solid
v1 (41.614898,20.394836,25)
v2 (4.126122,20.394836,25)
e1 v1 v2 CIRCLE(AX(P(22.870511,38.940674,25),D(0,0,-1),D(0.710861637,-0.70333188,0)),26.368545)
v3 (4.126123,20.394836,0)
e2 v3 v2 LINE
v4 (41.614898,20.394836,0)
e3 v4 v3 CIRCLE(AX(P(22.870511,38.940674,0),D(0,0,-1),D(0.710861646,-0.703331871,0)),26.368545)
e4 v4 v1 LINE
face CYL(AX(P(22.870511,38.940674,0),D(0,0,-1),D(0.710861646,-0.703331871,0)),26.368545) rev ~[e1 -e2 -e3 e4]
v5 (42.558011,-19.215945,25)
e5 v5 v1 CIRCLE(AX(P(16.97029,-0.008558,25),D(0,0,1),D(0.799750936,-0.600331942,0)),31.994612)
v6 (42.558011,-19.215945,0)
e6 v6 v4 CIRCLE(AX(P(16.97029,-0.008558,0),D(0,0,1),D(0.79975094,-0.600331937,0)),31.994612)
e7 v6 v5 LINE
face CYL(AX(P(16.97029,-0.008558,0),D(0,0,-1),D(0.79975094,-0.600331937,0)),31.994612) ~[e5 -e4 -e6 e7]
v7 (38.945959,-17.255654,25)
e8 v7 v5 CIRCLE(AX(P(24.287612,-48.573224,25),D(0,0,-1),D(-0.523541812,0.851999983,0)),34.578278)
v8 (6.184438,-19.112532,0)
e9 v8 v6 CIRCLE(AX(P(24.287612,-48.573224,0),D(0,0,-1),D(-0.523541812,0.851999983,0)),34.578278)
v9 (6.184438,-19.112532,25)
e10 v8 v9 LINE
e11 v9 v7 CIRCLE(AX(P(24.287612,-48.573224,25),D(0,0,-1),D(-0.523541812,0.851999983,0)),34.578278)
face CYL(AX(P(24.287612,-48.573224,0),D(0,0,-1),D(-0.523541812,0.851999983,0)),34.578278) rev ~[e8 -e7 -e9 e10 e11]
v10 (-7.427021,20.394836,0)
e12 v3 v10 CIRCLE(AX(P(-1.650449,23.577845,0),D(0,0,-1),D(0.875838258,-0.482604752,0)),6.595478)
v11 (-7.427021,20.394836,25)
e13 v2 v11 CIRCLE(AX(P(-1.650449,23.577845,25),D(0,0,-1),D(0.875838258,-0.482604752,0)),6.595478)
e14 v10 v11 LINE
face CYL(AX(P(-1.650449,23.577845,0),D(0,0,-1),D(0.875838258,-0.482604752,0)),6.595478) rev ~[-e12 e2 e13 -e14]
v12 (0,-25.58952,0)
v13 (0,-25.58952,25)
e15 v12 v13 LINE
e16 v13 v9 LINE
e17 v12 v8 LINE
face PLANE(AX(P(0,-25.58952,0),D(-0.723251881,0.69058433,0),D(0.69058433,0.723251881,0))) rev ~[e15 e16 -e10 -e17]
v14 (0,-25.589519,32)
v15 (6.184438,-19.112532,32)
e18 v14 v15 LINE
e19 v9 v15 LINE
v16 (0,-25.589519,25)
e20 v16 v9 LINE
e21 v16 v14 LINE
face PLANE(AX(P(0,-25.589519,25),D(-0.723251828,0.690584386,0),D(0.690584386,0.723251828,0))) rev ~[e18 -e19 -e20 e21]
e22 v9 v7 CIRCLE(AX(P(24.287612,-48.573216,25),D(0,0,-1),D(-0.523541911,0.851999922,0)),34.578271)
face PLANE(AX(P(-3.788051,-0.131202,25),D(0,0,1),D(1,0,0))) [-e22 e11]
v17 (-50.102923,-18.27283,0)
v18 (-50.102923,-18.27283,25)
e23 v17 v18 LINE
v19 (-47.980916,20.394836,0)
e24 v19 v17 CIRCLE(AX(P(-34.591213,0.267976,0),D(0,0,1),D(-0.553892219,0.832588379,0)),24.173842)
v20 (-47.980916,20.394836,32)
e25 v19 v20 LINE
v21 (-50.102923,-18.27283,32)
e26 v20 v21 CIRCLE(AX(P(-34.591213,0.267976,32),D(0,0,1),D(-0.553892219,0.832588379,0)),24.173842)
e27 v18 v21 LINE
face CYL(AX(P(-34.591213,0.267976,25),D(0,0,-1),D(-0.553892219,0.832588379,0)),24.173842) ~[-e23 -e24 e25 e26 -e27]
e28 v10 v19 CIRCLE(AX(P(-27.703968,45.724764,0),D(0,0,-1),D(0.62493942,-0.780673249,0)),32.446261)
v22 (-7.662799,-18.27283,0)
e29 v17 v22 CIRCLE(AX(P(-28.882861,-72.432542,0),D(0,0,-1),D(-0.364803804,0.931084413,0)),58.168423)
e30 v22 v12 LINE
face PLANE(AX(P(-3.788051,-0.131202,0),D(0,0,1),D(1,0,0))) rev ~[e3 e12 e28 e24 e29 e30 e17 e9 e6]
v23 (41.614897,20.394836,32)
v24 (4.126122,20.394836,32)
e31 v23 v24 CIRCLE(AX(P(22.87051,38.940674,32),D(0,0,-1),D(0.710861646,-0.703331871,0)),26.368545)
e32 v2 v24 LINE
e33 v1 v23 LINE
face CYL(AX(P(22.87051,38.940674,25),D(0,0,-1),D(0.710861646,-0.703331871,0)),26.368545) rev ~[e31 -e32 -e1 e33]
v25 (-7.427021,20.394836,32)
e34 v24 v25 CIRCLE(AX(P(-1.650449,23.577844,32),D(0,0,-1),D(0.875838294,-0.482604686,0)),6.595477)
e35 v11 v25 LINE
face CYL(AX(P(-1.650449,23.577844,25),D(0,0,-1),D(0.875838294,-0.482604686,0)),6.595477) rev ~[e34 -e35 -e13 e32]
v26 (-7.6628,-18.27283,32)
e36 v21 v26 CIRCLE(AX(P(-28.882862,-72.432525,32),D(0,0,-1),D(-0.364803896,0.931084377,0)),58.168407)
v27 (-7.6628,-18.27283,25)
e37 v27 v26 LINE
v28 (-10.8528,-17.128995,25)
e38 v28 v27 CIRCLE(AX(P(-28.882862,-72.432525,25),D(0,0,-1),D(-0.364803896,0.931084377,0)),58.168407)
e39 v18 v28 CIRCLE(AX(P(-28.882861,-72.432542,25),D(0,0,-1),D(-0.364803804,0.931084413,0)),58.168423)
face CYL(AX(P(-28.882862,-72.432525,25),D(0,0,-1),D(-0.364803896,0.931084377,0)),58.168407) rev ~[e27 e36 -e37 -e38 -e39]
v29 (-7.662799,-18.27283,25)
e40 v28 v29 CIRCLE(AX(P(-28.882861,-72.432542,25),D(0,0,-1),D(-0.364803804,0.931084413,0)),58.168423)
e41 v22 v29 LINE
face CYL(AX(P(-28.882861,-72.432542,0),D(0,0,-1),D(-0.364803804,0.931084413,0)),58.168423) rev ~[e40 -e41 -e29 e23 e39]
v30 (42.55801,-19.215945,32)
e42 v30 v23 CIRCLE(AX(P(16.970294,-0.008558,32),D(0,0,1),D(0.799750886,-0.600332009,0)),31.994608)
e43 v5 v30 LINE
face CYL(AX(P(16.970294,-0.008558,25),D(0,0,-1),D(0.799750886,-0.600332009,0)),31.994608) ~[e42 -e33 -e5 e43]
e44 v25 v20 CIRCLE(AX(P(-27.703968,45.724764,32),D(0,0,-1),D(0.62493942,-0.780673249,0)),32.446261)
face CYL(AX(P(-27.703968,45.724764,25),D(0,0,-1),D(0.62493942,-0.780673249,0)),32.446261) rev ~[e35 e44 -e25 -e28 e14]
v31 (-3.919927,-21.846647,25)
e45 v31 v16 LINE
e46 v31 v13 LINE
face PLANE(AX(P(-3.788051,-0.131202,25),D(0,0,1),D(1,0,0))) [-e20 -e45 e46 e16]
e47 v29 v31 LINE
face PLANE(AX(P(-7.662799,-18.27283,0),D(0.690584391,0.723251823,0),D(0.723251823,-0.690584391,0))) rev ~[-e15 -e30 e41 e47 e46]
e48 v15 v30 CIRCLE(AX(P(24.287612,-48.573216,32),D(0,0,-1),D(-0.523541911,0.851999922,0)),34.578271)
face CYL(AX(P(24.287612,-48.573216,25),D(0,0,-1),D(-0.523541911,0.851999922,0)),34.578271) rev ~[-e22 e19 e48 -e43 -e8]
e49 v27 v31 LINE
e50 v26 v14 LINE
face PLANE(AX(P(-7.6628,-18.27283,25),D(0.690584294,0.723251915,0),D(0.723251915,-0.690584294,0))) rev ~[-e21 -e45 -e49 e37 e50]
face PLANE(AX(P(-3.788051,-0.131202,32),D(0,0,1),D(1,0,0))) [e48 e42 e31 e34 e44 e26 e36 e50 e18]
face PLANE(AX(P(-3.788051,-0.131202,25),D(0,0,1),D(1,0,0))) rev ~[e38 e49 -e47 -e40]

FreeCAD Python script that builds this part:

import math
import FreeCAD as App
import Part
import Sketcher

doc = App.newDocument("Part")
body = doc.addObject("PartDesign::Body", "Body")

# Sketch on XY plane
sketch1 = body.newObject("Sketcher::SketchObject", "Sketch")
sketch1.AttachmentSupport = (doc.getObject("XY_Plane"), [""])
sketch1.MapMode = "FlatFace"
sketch1.addGeometry(Part.ArcOfCircle(Part.Circle(App.Vector(24, -49, 0), App.Vector(0, 0, 1), 35), math.radians(58), math.radians(122)), False)
sketch1.addGeometry(Part.ArcOfCircle(Part.Circle(App.Vector(17, 0, 0), App.Vector(0, 0, 1), 32), math.radians(-37), math.radians(40)), False)
sketch1.addGeometry(Part.ArcOfCircle(Part.Circle(App.Vector(23, 39, 0), App.Vector(0, 0, 1), 26), math.radians(-135), math.radians(-45)), False)
sketch1.addGeometry(Part.ArcOfCircle(Part.Circle(App.Vector(-2, 24, 0), App.Vector(0, 0, 1), 7), math.radians(-151), math.radians(-29)), False)
sketch1.addGeometry(Part.ArcOfCircle(Part.Circle(App.Vector(-28, 46, 0), App.Vector(0, 0, 1), 32), math.radians(-129), math.radians(-51)), False)
sketch1.addGeometry(Part.ArcOfCircle(Part.Circle(App.Vector(-35, 0, 0), App.Vector(0, 0, 1), 24), math.radians(124), math.radians(230)), False)
sketch1.addGeometry(Part.ArcOfCircle(Part.Circle(App.Vector(-29, -72, 0), App.Vector(0, 0, 1), 58), math.radians(69), math.radians(111)), False)
sketch1.addGeometry(Part.LineSegment(App.Vector(-8, -18, 0), App.Vector(0, -26, 0)), False)
sketch1.addGeometry(Part.LineSegment(App.Vector(0, -26, 0), App.Vector(6, -19, 0)), False)
sketch1.addConstraint(Sketcher.Constraint("Coincident", 0, 1, 1, 1))
sketch1.addConstraint(Sketcher.Constraint("Coincident", 1, 2, 2, 2))
sketch1.addConstraint(Sketcher.Constraint("Coincident", 2, 1, 3, 2))
sketch1.addConstraint(Sketcher.Constraint("Coincident", 3, 1, 4, 2))
sketch1.addConstraint(Sketcher.Constraint("Coincident", 4, 1, 5, 1))
sketch1.addConstraint(Sketcher.Constraint("Coincident", 5, 2, 6, 2))
sketch1.addConstraint(Sketcher.Constraint("Coincident", 6, 1, 7, 1))
sketch1.addConstraint(Sketcher.Constraint("Coincident", 7, 2, 8, 1))
sketch1.addConstraint(Sketcher.Constraint("Coincident", 8, 2, 0, 2))
sketch1.addConstraint(Sketcher.Constraint("PointOnObject", 7, 2, -2))
sketch1.addConstraint(Sketcher.Constraint("Perpendicular", 7, 8))
sketch1.addConstraint(Sketcher.Constraint("Horizontal", 1, 2, 2, 1))
sketch1.addConstraint(Sketcher.Constraint("Horizontal", 2, 1, 3, 1))
sketch1.addConstraint(Sketcher.Constraint("Horizontal", 3, 1, 4, 1))
sketch1.addConstraint(Sketcher.Constraint("Horizontal", 5, 2, 6, 1))
sketch1.addConstraint(Sketcher.Constraint("Radius", 0, 34.578278))
sketch1.addConstraint(Sketcher.Constraint("Radius", 1, 31.994612))
sketch1.addConstraint(Sketcher.Constraint("Radius", 3, 6.595478))
sketch1.addConstraint(Sketcher.Constraint("Radius", 4, 32.446261))
sketch1.addConstraint(Sketcher.Constraint("Radius", 5, 24.173842))
sketch1.addConstraint(Sketcher.Constraint("Radius", 2, 26.368545))
sketch1.addConstraint(Sketcher.Constraint("Radius", 6, 58.168423))
sketch1.addConstraint(Sketcher.Constraint("DistanceX", 6, 1, -1, 1, 7.662799))
sketch1.addConstraint(Sketcher.Constraint("DistanceX", 2, 3, 0, 3, 1.417102))
sketch1.addConstraint(Sketcher.Constraint("DistanceY", 0, 3, 2, 3, 87.513899))
sketch1.addConstraint(Sketcher.Constraint("DistanceY", 5, 3, 2, 3, 38.672698))
sketch1.addConstraint(Sketcher.Constraint("DistanceX", 0, 3, 0, 1, 18.270399))
sketch1.addConstraint(Sketcher.Constraint("DistanceY", 8, 2, 6, 1, 0.839702))
sketch1.addConstraint(Sketcher.Constraint("Distance", 8, 8.95537))
sketch1.addConstraint(Sketcher.Constraint("DistanceX", -1, 1, 1, 3, 16.97029))
sketch1.addConstraint(Sketcher.Constraint("DistanceX", -1, 1, 2, 3, 22.870511))
sketch1.addConstraint(Sketcher.Constraint("DistanceX", 3, 3, -1, 1, 1.650449))
sketch1.addConstraint(Sketcher.Constraint("DistanceX", 4, 3, -1, 1, 27.703968))
sketch1.addConstraint(Sketcher.Constraint("DistanceY", 5, 2, -1, 1, 18.27283))
pad1 = body.newObject("PartDesign::Pad", "Pad")
pad1.Profile = sketch1
pad1.Length = 25

# Sketch on XY plane
sketch2 = body.newObject("Sketcher::SketchObject", "Sketch001")
sketch2.AttachmentSupport = (doc.getObject("XY_Plane"), [""])
sketch2.MapMode = "FlatFace"
sketch2.AttachmentOffset = App.Placement(App.Vector(0, 0, 25), App.Rotation())
sketch2.addGeometry(Part.ArcOfCircle(Part.Circle(App.Vector(24, -49, 0), App.Vector(0, 0, 1), 35), math.radians(58), math.radians(122)), False)
sketch2.addGeometry(Part.ArcOfCircle(Part.Circle(App.Vector(17, 0, 0), App.Vector(0, 0, 1), 32), math.radians(-37), math.radians(40)), False)
sketch2.addGeometry(Part.ArcOfCircle(Part.Circle(App.Vector(23, 39, 0), App.Vector(0, 0, 1), 26), math.radians(-135), math.radians(-45)), False)
sketch2.addGeometry(Part.ArcOfCircle(Part.Circle(App.Vector(-2, 24, 0), App.Vector(0, 0, 1), 7), math.radians(-151), math.radians(-29)), False)
sketch2.addGeometry(Part.ArcOfCircle(Part.Circle(App.Vector(-28, 46, 0), App.Vector(0, 0, 1), 32), math.radians(-129), math.radians(-51)), False)
sketch2.addGeometry(Part.ArcOfCircle(Part.Circle(App.Vector(-35, 0, 0), App.Vector(0, 0, 1), 24), math.radians(124), math.radians(230)), False)
sketch2.addGeometry(Part.ArcOfCircle(Part.Circle(App.Vector(-29, -72, 0), App.Vector(0, 0, 1), 58), math.radians(69), math.radians(111)), False)
sketch2.addGeometry(Part.LineSegment(App.Vector(-8, -18, 0), App.Vector(0, -26, 0)), False)
sketch2.addGeometry(Part.LineSegment(App.Vector(0, -26, 0), App.Vector(6, -19, 0)), False)
sketch2.addConstraint(Sketcher.Constraint("Coincident", 0, 1, 1, 1))
sketch2.addConstraint(Sketcher.Constraint("Coincident", 1, 2, 2, 2))
sketch2.addConstraint(Sketcher.Constraint("Coincident", 2, 1, 3, 2))
sketch2.addConstraint(Sketcher.Constraint("Coincident", 3, 1, 4, 2))
sketch2.addConstraint(Sketcher.Constraint("Coincident", 4, 1, 5, 1))
sketch2.addConstraint(Sketcher.Constraint("Coincident", 5, 2, 6, 2))
sketch2.addConstraint(Sketcher.Constraint("Coincident", 6, 1, 7, 1))
sketch2.addConstraint(Sketcher.Constraint("Coincident", 7, 2, 8, 1))
sketch2.addConstraint(Sketcher.Constraint("Coincident", 8, 2, 0, 2))
sketch2.addConstraint(Sketcher.Constraint("PointOnObject", 7, 2, -2))
sketch2.addConstraint(Sketcher.Constraint("Perpendicular", 7, 8))
sketch2.addConstraint(Sketcher.Constraint("Horizontal", 1, 2, 2, 1))
sketch2.addConstraint(Sketcher.Constraint("Horizontal", 2, 1, 3, 1))
sketch2.addConstraint(Sketcher.Constraint("Horizontal", 3, 1, 4, 1))
sketch2.addConstraint(Sketcher.Constraint("Horizontal", 5, 2, 6, 1))
sketch2.addConstraint(Sketcher.Constraint("Radius", 0, 34.578271))
sketch2.addConstraint(Sketcher.Constraint("Radius", 4, 32.446261))
sketch2.addConstraint(Sketcher.Constraint("Radius", 5, 24.173842))
sketch2.addConstraint(Sketcher.Constraint("Radius", 1, 31.994608))
sketch2.addConstraint(Sketcher.Constraint("Radius", 2, 26.368545))
sketch2.addConstraint(Sketcher.Constraint("Radius", 3, 6.595477))
sketch2.addConstraint(Sketcher.Constraint("Radius", 6, 58.168407))
sketch2.addConstraint(Sketcher.Constraint("DistanceX", 6, 1, -1, 1, 7.6628))
sketch2.addConstraint(Sketcher.Constraint("DistanceY", 1, 3, 3, 3, 23.586402))
sketch2.addConstraint(Sketcher.Constraint("DistanceY", 5, 3, 2, 3, 38.672698))
sketch2.addConstraint(Sketcher.Constraint("DistanceY", 6, 3, 5, 3, 72.700501))
sketch2.addConstraint(Sketcher.Constraint("DistanceX", 0, 3, 0, 1, 18.270398))
sketch2.addConstraint(Sketcher.Constraint("DistanceX", 2, 3, 0, 1, 19.6875))
sketch2.addConstraint(Sketcher.Constraint("DistanceX", 5, 2, 3, 1, 42.675902))
sketch2.addConstraint(Sketcher.Constraint("Distance", 8, 8.955369))
sketch2.addConstraint(Sketcher.Constraint("DistanceX", -1, 1, 0, 3, 24.287612))
sketch2.addConstraint(Sketcher.Constraint("DistanceX", 3, 3, -1, 1, 1.650449))
sketch2.addConstraint(Sketcher.Constraint("DistanceX", 4, 3, -1, 1, 27.703968))
sketch2.addConstraint(Sketcher.Constraint("DistanceY", 5, 2, -1, 1, 18.27283))
pad2 = body.newObject("PartDesign::Pad", "Pad001")
pad2.Profile = sketch2
pad2.Length = 7

doc.recompute()
